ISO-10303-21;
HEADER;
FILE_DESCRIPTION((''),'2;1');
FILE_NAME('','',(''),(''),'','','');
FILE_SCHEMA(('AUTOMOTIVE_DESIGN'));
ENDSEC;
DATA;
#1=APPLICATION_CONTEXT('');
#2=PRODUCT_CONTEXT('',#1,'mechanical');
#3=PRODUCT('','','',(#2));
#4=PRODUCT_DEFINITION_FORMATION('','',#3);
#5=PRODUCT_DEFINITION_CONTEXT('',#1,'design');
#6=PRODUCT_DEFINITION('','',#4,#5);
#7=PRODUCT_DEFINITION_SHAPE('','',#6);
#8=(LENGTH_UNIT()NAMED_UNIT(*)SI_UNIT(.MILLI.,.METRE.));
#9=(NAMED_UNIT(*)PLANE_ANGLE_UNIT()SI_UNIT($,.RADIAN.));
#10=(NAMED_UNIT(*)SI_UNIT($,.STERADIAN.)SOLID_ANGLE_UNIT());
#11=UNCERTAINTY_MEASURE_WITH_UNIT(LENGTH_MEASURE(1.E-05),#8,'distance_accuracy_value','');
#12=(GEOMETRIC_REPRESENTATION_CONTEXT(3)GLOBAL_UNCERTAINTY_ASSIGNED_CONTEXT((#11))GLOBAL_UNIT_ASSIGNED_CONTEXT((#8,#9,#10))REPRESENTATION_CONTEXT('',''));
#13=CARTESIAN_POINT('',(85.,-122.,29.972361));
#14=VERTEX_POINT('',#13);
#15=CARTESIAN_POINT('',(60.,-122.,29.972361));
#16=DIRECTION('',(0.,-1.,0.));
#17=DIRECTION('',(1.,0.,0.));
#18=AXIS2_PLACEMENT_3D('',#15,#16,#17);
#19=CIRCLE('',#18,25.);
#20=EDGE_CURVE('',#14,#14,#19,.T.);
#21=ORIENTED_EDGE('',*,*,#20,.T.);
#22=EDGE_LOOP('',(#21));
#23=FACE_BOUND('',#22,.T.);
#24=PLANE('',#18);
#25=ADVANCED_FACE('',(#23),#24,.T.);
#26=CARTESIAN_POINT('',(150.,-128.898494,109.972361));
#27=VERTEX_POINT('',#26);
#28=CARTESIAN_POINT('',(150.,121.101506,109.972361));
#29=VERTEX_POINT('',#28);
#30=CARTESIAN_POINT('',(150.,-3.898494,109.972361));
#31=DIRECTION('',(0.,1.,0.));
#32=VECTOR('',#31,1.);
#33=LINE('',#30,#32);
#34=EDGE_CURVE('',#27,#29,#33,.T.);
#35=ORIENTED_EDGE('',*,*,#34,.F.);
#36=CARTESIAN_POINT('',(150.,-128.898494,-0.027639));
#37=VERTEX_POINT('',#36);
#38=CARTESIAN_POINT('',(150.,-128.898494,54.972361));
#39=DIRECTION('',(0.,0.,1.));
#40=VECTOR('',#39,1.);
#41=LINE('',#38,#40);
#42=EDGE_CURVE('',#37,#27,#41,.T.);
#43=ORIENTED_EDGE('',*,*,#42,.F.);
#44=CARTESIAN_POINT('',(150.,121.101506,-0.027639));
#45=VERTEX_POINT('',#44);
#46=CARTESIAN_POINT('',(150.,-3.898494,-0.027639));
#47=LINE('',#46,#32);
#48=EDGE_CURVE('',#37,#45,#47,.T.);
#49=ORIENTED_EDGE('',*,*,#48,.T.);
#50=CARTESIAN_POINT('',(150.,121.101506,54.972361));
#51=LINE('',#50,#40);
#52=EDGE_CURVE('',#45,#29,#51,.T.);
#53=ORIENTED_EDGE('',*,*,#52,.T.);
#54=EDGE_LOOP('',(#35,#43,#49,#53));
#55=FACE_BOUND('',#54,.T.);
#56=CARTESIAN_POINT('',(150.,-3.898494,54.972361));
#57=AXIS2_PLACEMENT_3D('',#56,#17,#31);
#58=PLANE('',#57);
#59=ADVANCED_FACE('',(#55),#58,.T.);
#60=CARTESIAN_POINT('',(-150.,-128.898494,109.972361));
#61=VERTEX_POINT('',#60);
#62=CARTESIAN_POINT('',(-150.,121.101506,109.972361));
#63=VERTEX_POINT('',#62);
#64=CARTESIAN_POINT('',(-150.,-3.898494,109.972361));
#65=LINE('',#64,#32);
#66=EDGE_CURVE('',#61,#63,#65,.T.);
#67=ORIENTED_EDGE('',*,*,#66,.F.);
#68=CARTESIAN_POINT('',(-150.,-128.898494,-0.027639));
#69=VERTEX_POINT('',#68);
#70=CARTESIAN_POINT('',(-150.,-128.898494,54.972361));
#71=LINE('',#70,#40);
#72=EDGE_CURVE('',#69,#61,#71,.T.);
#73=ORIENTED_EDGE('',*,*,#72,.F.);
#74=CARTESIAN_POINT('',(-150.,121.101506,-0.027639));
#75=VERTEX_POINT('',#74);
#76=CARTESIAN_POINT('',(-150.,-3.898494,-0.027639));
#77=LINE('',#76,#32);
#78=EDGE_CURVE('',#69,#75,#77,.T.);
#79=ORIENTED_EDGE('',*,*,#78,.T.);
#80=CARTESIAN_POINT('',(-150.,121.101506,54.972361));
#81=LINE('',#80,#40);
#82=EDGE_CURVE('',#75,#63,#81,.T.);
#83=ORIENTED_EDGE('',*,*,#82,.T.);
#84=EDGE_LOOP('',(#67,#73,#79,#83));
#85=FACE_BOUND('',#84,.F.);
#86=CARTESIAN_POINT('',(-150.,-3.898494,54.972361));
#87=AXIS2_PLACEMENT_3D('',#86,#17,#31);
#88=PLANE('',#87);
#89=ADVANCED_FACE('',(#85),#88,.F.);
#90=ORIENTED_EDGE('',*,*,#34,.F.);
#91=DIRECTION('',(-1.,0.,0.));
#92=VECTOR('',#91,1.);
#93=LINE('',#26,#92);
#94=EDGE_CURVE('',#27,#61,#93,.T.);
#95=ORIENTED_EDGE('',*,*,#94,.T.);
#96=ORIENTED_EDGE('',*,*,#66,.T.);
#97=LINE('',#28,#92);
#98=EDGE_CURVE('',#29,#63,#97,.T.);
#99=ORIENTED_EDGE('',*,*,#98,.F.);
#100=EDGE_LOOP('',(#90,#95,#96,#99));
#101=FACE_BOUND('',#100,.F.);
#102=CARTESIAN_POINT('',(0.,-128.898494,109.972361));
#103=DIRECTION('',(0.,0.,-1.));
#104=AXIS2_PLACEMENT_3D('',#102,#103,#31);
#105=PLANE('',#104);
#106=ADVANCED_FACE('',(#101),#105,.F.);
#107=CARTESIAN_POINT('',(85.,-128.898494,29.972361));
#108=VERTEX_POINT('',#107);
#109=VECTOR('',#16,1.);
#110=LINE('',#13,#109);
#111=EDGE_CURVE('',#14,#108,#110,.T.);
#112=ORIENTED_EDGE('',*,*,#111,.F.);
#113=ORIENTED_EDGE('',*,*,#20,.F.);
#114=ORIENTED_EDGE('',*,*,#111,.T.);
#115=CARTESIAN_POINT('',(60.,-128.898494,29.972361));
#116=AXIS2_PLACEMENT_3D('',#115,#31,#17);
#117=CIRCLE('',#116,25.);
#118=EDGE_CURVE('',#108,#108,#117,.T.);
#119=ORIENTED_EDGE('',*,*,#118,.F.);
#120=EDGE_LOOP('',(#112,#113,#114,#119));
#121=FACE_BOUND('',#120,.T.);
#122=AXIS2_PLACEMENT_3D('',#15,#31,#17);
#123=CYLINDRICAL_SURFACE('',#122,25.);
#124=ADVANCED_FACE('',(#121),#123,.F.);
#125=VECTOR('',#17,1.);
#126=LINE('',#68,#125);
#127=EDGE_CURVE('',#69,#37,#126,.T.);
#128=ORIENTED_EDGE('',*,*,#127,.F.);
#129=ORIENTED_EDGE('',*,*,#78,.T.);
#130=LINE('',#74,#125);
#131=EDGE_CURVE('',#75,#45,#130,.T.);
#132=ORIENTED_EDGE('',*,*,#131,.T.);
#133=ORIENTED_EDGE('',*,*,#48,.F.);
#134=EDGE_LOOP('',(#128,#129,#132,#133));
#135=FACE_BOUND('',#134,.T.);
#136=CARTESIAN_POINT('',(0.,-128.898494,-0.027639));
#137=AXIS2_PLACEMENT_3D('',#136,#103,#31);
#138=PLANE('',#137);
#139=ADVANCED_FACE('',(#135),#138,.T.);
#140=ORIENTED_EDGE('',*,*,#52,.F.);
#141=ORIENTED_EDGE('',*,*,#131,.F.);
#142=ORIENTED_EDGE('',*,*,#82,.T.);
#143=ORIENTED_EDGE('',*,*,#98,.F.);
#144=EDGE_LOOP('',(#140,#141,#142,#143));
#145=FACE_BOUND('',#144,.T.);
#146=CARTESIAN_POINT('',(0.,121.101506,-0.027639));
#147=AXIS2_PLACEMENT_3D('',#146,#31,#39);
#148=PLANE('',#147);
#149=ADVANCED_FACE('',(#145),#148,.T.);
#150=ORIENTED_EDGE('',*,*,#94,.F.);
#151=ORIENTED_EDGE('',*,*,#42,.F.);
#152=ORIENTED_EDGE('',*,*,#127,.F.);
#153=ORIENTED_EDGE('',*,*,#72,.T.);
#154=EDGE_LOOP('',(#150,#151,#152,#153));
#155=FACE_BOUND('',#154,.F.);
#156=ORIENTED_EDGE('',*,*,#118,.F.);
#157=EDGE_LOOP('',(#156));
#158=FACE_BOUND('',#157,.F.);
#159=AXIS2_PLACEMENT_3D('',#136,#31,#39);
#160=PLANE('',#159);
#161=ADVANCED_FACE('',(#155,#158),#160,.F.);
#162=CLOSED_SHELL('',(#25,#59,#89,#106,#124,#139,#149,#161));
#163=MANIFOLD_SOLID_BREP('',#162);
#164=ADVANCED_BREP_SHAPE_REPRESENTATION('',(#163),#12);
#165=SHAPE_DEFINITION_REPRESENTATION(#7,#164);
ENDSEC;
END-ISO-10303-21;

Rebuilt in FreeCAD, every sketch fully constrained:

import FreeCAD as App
import Part
import Sketcher
Q = App.Units.Quantity

doc = App.newDocument("Part")
body = doc.addObject("PartDesign::Body", "Body")

# Sketch on YZ plane
sketch1 = body.newObject("Sketcher::SketchObject", "Sketch")
sketch1.AttachmentSupport = (doc.getObject("YZ_Plane"), [""])
sketch1.MapMode = "FlatFace"
sketch1.addGeometry([
    Part.LineSegment(App.Vector(-129, 110, 0), App.Vector(-129, 0, 0)),
    Part.LineSegment(App.Vector(-129, 0, 0), App.Vector(121, 0, 0)),
    Part.LineSegment(App.Vector(121, 0, 0), App.Vector(121, 110, 0)),
    Part.LineSegment(App.Vector(121, 110, 0), App.Vector(-129, 110, 0)),
], False)
sketch1.addConstraint([
    Sketcher.Constraint("Coincident", 0, 2, 1, 1),
    Sketcher.Constraint("Coincident", 1, 2, 2, 1),
    Sketcher.Constraint("Coincident", 2, 2, 3, 1),
    Sketcher.Constraint("Coincident", 3, 2, 0, 1),
    Sketcher.Constraint("Vertical", 0),
    Sketcher.Constraint("Horizontal", 1),
    Sketcher.Constraint("Vertical", 2),
    Sketcher.Constraint("Horizontal", 3),
    Sketcher.Constraint("DistanceX", 1, 1, 1, 2, Q("250 mm")),
    Sketcher.Constraint("DistanceY", 0, 2, 0, 1, Q("110 mm")),
    Sketcher.Constraint("DistanceY", 0, 2, -1, 1, Q("0.027639 mm")),
    Sketcher.Constraint("DistanceX", 0, 2, -1, 1, Q("128.898494 mm")),
])
pad1 = body.newObject("PartDesign::Pad", "Pad")
pad1.Profile = sketch1
pad1.Length = 300
pad1.Midplane = True

# Sketch on XZ plane
sketch2 = body.newObject("Sketcher::SketchObject", "Sketch001")
sketch2.AttachmentSupport = (doc.getObject("XZ_Plane"), [""])
sketch2.MapMode = "FlatFace"
sketch2.AttachmentOffset = App.Placement(App.Vector(0, 0, 122), App.Rotation())
sketch2.addGeometry(Part.Circle(App.Vector(60, 30, 0), App.Vector(0, 0, 1), 25), False)
sketch2.addConstraint([
    Sketcher.Constraint("Diameter", 0, Q("50 mm")),
    Sketcher.Constraint("DistanceX", -1, 1, 0, 3, Q("60 mm")),
    Sketcher.Constraint("DistanceY", -1, 1, 0, 3, Q("29.972361 mm")),
])
pocket1 = body.newObject("PartDesign::Pocket", "Pocket")
pocket1.Profile = sketch2
pocket1.Length = 80
pocket1.Reversed = True

doc.recompute()
